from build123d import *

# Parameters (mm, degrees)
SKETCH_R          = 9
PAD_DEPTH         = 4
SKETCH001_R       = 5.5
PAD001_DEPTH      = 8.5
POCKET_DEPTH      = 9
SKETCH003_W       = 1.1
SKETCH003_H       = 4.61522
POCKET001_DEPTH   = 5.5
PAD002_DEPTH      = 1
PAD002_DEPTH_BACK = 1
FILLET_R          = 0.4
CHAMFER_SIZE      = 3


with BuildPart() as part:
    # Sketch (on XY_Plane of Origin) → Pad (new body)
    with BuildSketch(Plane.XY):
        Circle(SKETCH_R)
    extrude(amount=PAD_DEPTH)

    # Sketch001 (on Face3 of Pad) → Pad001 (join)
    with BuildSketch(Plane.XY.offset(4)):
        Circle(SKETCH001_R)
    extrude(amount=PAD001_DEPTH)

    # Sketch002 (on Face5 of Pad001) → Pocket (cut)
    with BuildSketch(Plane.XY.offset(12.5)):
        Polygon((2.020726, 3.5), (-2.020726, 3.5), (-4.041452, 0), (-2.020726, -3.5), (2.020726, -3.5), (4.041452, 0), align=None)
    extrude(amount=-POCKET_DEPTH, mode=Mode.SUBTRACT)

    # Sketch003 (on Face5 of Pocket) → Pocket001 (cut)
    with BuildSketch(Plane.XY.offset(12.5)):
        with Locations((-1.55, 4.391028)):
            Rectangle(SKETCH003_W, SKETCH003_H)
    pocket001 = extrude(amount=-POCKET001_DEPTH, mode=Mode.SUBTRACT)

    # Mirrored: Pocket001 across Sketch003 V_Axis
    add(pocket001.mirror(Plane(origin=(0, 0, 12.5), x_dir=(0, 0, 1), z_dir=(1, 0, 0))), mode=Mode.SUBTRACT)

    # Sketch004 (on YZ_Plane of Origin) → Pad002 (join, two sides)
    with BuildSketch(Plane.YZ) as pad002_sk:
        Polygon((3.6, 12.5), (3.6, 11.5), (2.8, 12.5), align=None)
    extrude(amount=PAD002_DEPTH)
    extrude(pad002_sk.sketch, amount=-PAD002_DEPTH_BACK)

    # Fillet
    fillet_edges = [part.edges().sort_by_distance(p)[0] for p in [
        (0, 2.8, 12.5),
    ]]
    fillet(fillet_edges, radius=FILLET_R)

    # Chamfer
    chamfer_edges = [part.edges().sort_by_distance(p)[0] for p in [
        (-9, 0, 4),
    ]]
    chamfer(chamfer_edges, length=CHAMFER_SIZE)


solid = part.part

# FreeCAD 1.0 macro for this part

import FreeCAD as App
import Part
import Sketcher
from FreeCAD import Vector
Q = App.Units.Quantity


def edges_at(feature, points):
    """Names of the edges that pass closest to the given points."""
    edges = feature.Shape.Edges
    near = lambda p: min(range(len(edges)), key=lambda i: edges[i].distToShape(Part.Vertex(*p))[0])
    return sorted({f"Edge{near(p) + 1}" for p in points})

doc = App.newDocument("Part")
body = doc.addObject("PartDesign::Body", "Body")

# Sketch on XY plane
sketch1 = body.newObject("Sketcher::SketchObject", "Sketch")
sketch1.AttachmentSupport = (doc.getObject("XY_Plane"), [""])
sketch1.MapMode = "FlatFace"
sketch1.addGeometry(Part.Circle(Vector(0, 0, 0), Vector(0, 0, 1), 9), False)
sketch1.addConstraint([
    Sketcher.Constraint("Coincident", 0, 3, -1, 1),
    Sketcher.Constraint("Diameter", 0, 18.0),
])
pad1 = body.newObject("PartDesign::Pad", "Pad")
pad1.Profile = sketch1
pad1.Length = 4

# Sketch on XY plane
sketch2 = body.newObject("Sketcher::SketchObject", "Sketch001")
sketch2.AttachmentSupport = (doc.getObject("XY_Plane"), [""])
sketch2.MapMode = "FlatFace"
sketch2.AttachmentOffset = App.Placement(Vector(0, 0, 4), App.Rotation())
sketch2.addGeometry(Part.Circle(Vector(0, 0, 0), Vector(0, 0, 1), 6), False)
sketch2.addConstraint([
    Sketcher.Constraint("Coincident", 0, 3, -1, 1),
    Sketcher.Constraint("Diameter", 0, 11.0),
])
pad2 = body.newObject("PartDesign::Pad", "Pad001")
pad2.Profile = sketch2
pad2.Length = 8.5

# Sketch on XY plane
sketch3 = body.newObject("Sketcher::SketchObject", "Sketch002")
sketch3.AttachmentSupport = (doc.getObject("XY_Plane"), [""])
sketch3.MapMode = "FlatFace"
sketch3.AttachmentOffset = App.Placement(Vector(0, 0, 12.5), App.Rotation())
sketch3.addGeometry([
    Part.LineSegment(Vector(2, 3.5, 0), Vector(-2, 3.5, 0)),  # 0
    Part.LineSegment(Vector(-2, 3.5, 0), Vector(-4, 0, 0)),  # 1
    Part.LineSegment(Vector(-4, 0, 0), Vector(-2, -3.5, 0)),  # 2
    Part.LineSegment(Vector(-2, -3.5, 0), Vector(2, -3.5, 0)),  # 3
    Part.LineSegment(Vector(2, -3.5, 0), Vector(4, 0, 0)),  # 4
    Part.LineSegment(Vector(4, 0, 0), Vector(2, 3.5, 0)),  # 5
], False)
sketch3.addConstraint([
    Sketcher.Constraint("Coincident", 0, 2, 1, 1),
    Sketcher.Constraint("Coincident", 1, 2, 2, 1),
    Sketcher.Constraint("Coincident", 2, 2, 3, 1),
    Sketcher.Constraint("Coincident", 3, 2, 4, 1),
    Sketcher.Constraint("Coincident", 4, 2, 5, 1),
    Sketcher.Constraint("Coincident", 5, 2, 0, 1),
    Sketcher.Constraint("Horizontal", 0),
    Sketcher.Constraint("Horizontal", 3),
    Sketcher.Constraint("Symmetric", 0, 2, 3, 2, -1, 1),
    Sketcher.Constraint("Symmetric", 1, 2, 4, 2, -1, 1),
    Sketcher.Constraint("PointOnObject", 1, 2, -1),
    Sketcher.Constraint("Parallel", 2, 5),
    Sketcher.Constraint("Vertical", 0, 2, 2, 2),
    Sketcher.Constraint("Angle", 1, Q("-120.000001 deg")),
    Sketcher.Constraint("DistanceY", 2, 2, 0, 2, 7.0),
    Sketcher.Constraint("DistanceX", 0, 2, 0, 1, 4.041452),
])
pocket1 = body.newObject("PartDesign::Pocket", "Pocket")
pocket1.Profile = sketch3
pocket1.Length = 9

# Sketch on XY plane
sketch4 = body.newObject("Sketcher::SketchObject", "Sketch003")
sketch4.AttachmentSupport = (doc.getObject("XY_Plane"), [""])
sketch4.MapMode = "FlatFace"
sketch4.AttachmentOffset = App.Placement(Vector(0, 0, 12.5), App.Rotation())
sketch4.addGeometry([
    Part.LineSegment(Vector(-2.1, 6.7, 0), Vector(-2.1, 2.1, 0)),
    Part.LineSegment(Vector(-2.1, 2.1, 0), Vector(-1, 2.1, 0)),
    Part.LineSegment(Vector(-1, 2.1, 0), Vector(-1, 6.7, 0)),
    Part.LineSegment(Vector(-1, 6.7, 0), Vector(-2.1, 6.7, 0)),
], False)
sketch4.addConstraint([
    Sketcher.Constraint("Coincident", 0, 2, 1, 1),
    Sketcher.Constraint("Coincident", 1, 2, 2, 1),
    Sketcher.Constraint("Coincident", 2, 2, 3, 1),
    Sketcher.Constraint("Coincident", 3, 2, 0, 1),
    Sketcher.Constraint("Vertical", 0),
    Sketcher.Constraint("Horizontal", 1),
    Sketcher.Constraint("Vertical", 2),
    Sketcher.Constraint("Horizontal", 3),
    Sketcher.Constraint("DistanceX", 1, 1, 1, 2, 1.1),
    Sketcher.Constraint("DistanceX", 1, 2, -1, 1, 1.0),
    Sketcher.Constraint("DistanceY", 0, 2, 0, 1, 4.61522),
    Sketcher.Constraint("DistanceY", -1, 1, 0, 2, 2.083418),
])
pocket2 = body.newObject("PartDesign::Pocket", "Pocket001")
pocket2.Profile = sketch4
pocket2.Length = 5.5
doc.recompute()

mirrored = body.newObject("PartDesign::Mirrored", "Mirrored")
mirrored.Originals = [pocket2]
mirrored.MirrorPlane = (doc.getObject("YZ_Plane"), [""])
body.Tip = mirrored

# Sketch on YZ plane
sketch5 = body.newObject("Sketcher::SketchObject", "Sketch004")
sketch5.AttachmentSupport = (doc.getObject("YZ_Plane"), [""])
sketch5.MapMode = "FlatFace"
sketch5.addGeometry([
    Part.LineSegment(Vector(3.6, 11.5, 0), Vector(3.6, 12.5, 0)),
    Part.LineSegment(Vector(3.6, 12.5, 0), Vector(2.8, 12.5, 0)),
    Part.LineSegment(Vector(2.8, 12.5, 0), Vector(3.6, 11.5, 0)),
], False)
sketch5.addConstraint([
    Sketcher.Constraint("Coincident", 0, 2, 1, 1),
    Sketcher.Constraint("Coincident", 1, 2, 2, 1),
    Sketcher.Constraint("Coincident", 2, 2, 0, 1),
    Sketcher.Constraint("Vertical", 0),
    Sketcher.Constraint("Horizontal", 1),
    Sketcher.Constraint("DistanceY", 0, 1, 0, 2, 1.0),
    Sketcher.Constraint("DistanceX", 1, 2, 1, 1, 0.8),
    Sketcher.Constraint("DistanceX", -1, 1, 0, 2, 3.6),
    Sketcher.Constraint("DistanceY", -1, 1, 0, 2, 12.5),
])
pad3 = body.newObject("PartDesign::Pad", "Pad002")
pad3.Profile = sketch5
pad3.Type = "TwoLengths"
pad3.Length = 1
pad3.Length2 = 1
doc.recompute()

fillet = body.newObject("PartDesign::Fillet", "Fillet")
fillet.Base = (pad3, edges_at(pad3, [(0, 2.8, 12.5)]))
fillet.Radius = 0.4
doc.recompute()

chamfer = body.newObject("PartDesign::Chamfer", "Chamfer")
chamfer.Base = (fillet, edges_at(fillet, [(-9, 0, 4)]))
chamfer.Size = 3

doc.recompute()
